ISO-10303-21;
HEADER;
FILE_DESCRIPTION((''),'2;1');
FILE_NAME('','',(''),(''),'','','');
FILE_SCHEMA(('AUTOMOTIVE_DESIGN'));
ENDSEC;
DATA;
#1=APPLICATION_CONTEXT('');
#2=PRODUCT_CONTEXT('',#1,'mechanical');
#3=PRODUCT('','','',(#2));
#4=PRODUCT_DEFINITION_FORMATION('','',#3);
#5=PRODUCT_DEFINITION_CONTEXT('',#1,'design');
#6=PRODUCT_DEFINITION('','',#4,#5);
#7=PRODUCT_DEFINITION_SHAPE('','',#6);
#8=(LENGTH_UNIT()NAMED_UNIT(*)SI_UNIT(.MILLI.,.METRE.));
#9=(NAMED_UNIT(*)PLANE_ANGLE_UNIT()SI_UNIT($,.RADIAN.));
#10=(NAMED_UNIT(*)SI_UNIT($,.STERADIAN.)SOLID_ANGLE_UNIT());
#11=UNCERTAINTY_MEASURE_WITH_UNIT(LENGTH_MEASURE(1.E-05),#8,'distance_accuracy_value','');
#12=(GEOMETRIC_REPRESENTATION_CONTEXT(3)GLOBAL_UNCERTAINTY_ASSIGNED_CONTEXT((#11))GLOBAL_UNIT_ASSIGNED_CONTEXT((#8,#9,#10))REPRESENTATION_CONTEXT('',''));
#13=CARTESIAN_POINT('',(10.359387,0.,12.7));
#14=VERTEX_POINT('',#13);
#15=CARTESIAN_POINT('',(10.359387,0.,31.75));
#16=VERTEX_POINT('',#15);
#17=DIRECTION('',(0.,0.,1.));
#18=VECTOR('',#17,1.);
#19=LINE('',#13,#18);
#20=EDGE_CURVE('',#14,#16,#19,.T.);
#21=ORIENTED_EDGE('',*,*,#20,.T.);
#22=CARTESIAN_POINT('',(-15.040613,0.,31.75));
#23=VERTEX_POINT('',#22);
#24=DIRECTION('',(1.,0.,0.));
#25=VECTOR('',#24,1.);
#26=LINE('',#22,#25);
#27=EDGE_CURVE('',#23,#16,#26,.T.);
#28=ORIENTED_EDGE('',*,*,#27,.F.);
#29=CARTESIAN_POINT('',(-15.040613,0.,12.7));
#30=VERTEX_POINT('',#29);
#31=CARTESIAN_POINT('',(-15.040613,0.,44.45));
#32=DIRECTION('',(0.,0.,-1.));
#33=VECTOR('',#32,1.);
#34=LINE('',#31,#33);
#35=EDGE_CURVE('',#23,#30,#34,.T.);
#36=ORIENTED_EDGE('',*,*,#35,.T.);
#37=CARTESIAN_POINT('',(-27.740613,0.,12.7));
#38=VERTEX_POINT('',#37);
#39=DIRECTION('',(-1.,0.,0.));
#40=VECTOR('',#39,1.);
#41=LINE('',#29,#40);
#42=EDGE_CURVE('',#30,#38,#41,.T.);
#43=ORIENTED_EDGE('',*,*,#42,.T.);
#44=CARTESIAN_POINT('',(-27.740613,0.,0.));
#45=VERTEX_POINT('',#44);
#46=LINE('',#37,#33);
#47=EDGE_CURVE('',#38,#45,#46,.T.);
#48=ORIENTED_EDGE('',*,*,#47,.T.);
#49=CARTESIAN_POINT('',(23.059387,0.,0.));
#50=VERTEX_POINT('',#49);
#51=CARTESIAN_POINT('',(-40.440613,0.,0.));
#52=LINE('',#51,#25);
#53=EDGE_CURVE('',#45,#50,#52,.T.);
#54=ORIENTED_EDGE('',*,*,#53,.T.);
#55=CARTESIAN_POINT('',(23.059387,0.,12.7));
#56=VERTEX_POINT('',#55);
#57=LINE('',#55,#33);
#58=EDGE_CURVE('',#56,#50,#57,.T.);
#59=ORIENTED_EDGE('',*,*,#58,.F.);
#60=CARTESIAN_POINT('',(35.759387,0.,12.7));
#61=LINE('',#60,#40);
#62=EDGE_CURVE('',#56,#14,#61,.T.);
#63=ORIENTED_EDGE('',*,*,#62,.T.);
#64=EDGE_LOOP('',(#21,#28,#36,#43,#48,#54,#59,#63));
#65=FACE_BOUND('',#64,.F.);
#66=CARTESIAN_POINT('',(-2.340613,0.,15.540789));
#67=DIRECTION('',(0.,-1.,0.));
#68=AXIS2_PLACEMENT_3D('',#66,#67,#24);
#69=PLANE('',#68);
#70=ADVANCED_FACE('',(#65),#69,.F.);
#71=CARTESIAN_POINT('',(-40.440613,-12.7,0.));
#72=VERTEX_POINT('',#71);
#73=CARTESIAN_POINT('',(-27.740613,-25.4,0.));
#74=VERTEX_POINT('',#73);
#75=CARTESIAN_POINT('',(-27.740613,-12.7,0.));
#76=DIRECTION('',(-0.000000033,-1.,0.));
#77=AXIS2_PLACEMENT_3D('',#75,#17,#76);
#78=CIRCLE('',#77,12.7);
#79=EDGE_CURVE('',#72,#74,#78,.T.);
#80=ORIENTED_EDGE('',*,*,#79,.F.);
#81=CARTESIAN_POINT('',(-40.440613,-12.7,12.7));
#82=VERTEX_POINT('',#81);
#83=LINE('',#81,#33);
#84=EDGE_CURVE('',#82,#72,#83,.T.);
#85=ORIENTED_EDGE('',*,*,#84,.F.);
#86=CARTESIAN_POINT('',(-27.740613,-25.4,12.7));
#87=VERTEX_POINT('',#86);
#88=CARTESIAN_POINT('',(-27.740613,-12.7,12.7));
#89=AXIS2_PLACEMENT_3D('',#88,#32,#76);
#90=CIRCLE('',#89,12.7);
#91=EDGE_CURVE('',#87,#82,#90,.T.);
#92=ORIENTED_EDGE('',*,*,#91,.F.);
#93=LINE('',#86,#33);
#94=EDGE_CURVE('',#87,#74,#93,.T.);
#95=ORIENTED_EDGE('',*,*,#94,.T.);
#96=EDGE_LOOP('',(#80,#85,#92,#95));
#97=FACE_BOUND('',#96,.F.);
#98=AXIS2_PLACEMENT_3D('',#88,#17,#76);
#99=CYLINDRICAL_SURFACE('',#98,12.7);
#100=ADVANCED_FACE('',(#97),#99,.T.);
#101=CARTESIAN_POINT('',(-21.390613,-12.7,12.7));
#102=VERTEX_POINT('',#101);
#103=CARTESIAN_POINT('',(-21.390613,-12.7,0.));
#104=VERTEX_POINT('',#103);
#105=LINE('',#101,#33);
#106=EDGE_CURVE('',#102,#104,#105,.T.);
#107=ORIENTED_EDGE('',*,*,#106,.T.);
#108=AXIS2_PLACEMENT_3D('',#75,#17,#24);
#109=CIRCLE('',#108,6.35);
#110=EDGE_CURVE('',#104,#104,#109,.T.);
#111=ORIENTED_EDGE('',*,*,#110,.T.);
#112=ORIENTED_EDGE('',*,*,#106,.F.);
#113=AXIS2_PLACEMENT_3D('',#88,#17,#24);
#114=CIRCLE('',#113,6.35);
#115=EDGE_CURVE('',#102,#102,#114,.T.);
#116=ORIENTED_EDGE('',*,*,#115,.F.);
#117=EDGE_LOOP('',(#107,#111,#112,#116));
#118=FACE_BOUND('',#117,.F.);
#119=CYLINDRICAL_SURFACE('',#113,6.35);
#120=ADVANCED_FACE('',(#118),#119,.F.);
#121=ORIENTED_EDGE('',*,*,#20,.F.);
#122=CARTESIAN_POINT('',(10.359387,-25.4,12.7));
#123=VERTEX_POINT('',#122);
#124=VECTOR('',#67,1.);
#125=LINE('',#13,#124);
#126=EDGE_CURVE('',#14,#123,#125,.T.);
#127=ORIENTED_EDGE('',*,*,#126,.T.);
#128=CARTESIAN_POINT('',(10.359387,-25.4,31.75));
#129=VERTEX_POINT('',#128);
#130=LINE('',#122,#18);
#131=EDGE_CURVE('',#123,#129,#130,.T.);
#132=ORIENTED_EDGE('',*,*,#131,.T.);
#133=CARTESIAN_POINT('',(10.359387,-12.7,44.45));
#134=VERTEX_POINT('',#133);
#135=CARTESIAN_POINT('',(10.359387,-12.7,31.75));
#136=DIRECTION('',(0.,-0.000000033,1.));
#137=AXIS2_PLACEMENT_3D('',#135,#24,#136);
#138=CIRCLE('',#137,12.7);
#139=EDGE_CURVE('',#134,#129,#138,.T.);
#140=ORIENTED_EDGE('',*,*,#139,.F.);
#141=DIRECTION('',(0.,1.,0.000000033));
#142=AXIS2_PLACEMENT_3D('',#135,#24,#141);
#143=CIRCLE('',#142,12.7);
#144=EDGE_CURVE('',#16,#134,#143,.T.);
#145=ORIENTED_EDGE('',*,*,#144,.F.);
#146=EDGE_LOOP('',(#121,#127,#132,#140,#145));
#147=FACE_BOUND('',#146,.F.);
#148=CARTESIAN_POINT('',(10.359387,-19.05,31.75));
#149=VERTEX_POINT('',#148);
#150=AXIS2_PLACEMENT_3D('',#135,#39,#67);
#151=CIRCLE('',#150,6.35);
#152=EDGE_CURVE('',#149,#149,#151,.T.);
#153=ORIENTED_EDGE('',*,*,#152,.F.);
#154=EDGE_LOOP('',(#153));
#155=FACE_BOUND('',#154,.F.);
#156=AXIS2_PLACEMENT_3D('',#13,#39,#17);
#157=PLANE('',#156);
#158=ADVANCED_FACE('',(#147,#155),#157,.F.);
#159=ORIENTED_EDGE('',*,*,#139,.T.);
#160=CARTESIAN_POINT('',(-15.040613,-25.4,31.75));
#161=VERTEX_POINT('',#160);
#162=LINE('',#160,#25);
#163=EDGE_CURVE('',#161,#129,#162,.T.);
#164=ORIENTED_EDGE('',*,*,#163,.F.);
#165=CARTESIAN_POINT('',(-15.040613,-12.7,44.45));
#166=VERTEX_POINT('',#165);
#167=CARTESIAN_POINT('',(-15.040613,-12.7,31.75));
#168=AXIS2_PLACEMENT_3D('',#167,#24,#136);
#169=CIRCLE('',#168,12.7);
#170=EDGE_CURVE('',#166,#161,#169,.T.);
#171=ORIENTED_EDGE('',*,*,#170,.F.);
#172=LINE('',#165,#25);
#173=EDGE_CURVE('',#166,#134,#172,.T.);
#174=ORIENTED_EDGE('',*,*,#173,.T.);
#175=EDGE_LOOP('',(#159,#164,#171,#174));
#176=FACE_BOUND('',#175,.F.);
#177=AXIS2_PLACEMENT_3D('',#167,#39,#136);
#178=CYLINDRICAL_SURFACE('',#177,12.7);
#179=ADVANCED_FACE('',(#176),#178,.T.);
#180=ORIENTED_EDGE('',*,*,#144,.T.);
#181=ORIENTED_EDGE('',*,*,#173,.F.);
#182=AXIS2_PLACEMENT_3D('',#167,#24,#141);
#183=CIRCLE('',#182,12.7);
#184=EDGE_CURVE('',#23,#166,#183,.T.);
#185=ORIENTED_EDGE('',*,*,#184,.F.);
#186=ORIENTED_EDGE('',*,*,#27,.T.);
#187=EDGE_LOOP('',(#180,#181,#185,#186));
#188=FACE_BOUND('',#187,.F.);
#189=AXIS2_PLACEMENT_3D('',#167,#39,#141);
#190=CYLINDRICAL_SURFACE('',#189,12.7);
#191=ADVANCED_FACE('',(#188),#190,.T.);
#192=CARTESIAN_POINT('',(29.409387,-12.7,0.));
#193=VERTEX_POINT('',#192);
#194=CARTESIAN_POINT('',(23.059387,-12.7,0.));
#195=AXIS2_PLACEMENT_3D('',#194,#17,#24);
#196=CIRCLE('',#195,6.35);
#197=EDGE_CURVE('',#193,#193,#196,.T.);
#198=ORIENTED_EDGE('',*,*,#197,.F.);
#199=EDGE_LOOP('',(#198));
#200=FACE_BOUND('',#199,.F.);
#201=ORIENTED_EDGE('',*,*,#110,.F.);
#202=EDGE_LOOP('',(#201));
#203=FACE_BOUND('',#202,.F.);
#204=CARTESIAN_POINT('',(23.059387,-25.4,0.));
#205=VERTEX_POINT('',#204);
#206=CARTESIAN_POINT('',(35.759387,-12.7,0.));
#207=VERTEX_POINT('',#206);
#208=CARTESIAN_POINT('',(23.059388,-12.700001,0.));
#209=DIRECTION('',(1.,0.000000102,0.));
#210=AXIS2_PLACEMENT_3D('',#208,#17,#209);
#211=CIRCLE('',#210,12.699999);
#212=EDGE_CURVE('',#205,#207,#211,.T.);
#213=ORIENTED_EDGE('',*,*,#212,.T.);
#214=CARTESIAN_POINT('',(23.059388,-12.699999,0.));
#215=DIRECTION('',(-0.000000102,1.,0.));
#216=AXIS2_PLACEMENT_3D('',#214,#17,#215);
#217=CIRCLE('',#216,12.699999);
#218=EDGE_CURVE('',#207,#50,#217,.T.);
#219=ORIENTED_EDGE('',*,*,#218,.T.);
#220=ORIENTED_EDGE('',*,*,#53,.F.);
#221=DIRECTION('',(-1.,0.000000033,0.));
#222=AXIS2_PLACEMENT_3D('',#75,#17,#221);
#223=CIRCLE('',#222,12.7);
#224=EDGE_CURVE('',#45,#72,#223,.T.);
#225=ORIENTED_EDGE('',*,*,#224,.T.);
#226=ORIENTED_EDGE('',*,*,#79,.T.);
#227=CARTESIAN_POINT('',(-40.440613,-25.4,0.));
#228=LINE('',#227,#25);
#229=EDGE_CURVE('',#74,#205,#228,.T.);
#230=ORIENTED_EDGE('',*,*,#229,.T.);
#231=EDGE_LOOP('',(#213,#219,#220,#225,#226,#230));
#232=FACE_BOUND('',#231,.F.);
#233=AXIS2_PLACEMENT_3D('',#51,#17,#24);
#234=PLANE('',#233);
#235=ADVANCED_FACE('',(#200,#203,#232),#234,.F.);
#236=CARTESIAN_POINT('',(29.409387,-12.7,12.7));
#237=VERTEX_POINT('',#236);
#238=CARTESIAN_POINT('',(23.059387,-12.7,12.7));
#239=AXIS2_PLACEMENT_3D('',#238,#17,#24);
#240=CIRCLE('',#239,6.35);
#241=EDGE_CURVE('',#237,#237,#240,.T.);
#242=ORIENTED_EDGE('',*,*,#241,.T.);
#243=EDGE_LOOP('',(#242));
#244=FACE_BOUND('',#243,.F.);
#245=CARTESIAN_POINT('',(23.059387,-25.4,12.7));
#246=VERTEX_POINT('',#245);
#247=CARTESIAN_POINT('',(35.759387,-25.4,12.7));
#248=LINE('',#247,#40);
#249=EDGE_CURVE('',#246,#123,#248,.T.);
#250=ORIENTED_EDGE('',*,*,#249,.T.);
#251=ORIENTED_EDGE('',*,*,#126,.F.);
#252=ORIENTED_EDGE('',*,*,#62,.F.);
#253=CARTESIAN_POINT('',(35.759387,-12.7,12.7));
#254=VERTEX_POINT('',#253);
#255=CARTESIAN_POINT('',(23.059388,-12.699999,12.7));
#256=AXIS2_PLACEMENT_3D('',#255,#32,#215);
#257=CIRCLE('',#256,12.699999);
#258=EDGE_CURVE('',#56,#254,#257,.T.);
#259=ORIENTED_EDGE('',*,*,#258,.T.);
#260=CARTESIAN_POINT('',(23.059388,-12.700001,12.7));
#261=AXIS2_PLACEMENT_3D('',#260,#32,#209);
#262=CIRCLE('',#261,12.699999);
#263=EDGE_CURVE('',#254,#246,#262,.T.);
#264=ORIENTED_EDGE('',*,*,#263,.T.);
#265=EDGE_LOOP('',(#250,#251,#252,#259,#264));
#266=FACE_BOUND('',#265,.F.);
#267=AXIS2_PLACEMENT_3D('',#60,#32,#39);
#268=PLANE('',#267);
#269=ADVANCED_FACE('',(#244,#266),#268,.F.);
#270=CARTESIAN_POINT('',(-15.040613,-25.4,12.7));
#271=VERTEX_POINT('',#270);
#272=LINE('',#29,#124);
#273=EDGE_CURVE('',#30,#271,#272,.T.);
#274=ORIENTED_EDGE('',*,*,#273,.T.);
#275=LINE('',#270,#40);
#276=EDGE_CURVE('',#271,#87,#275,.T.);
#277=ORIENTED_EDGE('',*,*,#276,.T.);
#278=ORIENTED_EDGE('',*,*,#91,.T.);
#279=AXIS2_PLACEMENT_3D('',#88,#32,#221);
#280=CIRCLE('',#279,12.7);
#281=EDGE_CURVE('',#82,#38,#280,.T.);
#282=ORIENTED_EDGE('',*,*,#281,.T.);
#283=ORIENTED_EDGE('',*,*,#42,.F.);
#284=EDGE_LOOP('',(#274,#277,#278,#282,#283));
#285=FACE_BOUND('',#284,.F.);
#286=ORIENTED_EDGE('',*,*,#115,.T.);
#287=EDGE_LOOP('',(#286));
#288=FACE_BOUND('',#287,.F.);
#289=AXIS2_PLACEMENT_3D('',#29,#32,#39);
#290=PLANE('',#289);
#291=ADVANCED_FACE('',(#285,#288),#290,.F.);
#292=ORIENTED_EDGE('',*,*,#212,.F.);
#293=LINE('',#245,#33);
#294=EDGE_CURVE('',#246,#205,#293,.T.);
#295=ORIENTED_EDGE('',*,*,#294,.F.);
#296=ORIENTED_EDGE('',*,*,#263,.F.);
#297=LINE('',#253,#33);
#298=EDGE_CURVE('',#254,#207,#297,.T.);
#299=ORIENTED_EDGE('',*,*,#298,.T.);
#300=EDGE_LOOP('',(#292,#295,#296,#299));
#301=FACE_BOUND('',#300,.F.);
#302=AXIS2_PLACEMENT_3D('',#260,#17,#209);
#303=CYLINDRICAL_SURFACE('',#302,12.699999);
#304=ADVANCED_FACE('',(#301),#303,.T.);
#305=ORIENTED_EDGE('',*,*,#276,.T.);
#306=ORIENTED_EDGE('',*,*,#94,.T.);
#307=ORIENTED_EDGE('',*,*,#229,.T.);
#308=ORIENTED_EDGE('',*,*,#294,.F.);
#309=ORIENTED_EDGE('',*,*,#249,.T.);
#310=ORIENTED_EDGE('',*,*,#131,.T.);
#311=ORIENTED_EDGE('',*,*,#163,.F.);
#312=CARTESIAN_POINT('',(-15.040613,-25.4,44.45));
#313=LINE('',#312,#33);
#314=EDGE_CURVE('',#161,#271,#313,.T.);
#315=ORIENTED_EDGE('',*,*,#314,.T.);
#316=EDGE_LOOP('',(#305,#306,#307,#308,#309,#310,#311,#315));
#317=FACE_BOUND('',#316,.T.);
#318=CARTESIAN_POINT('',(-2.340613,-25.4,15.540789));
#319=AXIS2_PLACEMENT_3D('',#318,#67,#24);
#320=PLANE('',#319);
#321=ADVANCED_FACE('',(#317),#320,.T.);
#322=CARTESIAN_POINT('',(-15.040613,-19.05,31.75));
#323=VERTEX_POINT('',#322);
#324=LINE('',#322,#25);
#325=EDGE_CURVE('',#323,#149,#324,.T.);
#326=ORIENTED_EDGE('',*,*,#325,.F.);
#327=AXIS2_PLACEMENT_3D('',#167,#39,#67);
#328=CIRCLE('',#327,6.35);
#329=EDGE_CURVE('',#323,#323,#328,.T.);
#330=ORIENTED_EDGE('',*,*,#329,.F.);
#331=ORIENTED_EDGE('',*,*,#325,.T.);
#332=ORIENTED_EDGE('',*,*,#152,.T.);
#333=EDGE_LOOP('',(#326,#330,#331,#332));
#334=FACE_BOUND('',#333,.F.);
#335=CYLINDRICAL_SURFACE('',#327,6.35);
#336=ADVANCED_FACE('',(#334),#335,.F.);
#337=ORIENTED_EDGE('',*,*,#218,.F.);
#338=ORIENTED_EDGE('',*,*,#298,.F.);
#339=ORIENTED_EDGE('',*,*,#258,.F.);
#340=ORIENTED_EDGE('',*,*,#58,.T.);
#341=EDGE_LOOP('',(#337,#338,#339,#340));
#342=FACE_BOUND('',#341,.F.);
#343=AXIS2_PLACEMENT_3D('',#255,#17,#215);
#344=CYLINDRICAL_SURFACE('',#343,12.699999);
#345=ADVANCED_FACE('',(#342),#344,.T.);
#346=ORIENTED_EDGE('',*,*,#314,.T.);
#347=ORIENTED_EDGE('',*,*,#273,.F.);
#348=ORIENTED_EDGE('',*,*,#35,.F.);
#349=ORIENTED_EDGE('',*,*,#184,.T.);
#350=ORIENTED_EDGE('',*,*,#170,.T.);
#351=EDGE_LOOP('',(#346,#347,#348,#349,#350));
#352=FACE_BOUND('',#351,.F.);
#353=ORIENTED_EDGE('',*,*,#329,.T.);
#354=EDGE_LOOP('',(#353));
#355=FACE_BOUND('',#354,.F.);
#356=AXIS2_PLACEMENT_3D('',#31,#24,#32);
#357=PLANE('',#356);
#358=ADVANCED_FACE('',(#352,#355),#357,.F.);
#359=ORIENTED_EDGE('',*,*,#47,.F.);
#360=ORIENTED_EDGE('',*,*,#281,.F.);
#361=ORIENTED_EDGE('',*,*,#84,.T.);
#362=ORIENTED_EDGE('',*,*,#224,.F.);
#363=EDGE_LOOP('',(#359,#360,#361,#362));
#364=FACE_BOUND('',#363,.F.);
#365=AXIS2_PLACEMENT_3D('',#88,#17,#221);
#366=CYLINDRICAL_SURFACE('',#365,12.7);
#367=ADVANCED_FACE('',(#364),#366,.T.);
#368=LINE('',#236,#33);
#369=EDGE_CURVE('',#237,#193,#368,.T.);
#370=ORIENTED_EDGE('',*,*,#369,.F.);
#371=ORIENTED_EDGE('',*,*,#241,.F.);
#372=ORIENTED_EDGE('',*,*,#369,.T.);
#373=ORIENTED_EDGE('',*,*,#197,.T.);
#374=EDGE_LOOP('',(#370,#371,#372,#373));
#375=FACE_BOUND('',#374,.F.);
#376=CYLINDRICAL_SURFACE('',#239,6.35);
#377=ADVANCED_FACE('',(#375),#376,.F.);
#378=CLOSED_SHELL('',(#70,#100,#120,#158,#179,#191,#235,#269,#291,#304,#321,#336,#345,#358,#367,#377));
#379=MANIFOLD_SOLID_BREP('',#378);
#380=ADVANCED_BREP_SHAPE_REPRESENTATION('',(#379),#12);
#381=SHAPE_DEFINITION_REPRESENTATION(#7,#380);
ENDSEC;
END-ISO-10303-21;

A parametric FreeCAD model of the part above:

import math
import FreeCAD as App
import Part
import Sketcher
Q = App.Units.Quantity

doc = App.newDocument("Part")
body = doc.addObject("PartDesign::Body", "Body")

# Sketch on XZ plane
sketch1 = doc.addObject("Sketcher::SketchObject", "Sketch")
body.addObject(sketch1)
sketch1.AttachmentSupport = (doc.XZ_Plane, [""])
sketch1.MapMode = "FlatFace"
sketch1.addGeometry([
    Part.LineSegment(App.Vector(-40, 13, 0), App.Vector(-40, 0, 0)),  # 0
    Part.LineSegment(App.Vector(-40, 0, 0), App.Vector(36, 0, 0)),  # 1
    Part.LineSegment(App.Vector(36, 0, 0), App.Vector(36, 13, 0)),  # 2
    Part.LineSegment(App.Vector(36, 13, 0), App.Vector(10, 13, 0)),  # 3
    Part.LineSegment(App.Vector(10, 13, 0), App.Vector(10, 44, 0)),  # 4
    Part.LineSegment(App.Vector(10, 44, 0), App.Vector(-15, 44, 0)),  # 5
    Part.LineSegment(App.Vector(-15, 44, 0), App.Vector(-15, 13, 0)),  # 6
    Part.LineSegment(App.Vector(-15, 13, 0), App.Vector(-40, 13, 0)),  # 7
], False)
sketch1.addConstraint([
    Sketcher.Constraint("Coincident", 0, 2, 1, 1),
    Sketcher.Constraint("Coincident", 1, 2, 2, 1),
    Sketcher.Constraint("Coincident", 2, 2, 3, 1),
    Sketcher.Constraint("Coincident", 3, 2, 4, 1),
    Sketcher.Constraint("Coincident", 4, 2, 5, 1),
    Sketcher.Constraint("Coincident", 5, 2, 6, 1),
    Sketcher.Constraint("Coincident", 6, 2, 7, 1),
    Sketcher.Constraint("Coincident", 7, 2, 0, 1),
    Sketcher.Constraint("Vertical", 0),
    Sketcher.Constraint("Horizontal", 1),
    Sketcher.Constraint("Vertical", 2),
    Sketcher.Constraint("Horizontal", 3),
    Sketcher.Constraint("Vertical", 4),
    Sketcher.Constraint("Horizontal", 5),
    Sketcher.Constraint("Vertical", 6),
    Sketcher.Constraint("Horizontal", 7),
    Sketcher.Constraint("PointOnObject", 0, 2, -1),
    Sketcher.Constraint("Horizontal", 3, 2, 6, 2),
    Sketcher.Constraint("Equal", 3, 5),
    Sketcher.Constraint("Equal", 5, 7),
    Sketcher.Constraint("DistanceX", 1, 1, 1, 2, Q("3 in")),
    Sketcher.Constraint("DistanceY", 0, 2, 0, 1, Q("0.5 in")),
    Sketcher.Constraint("DistanceY", 4, 1, 4, 2, Q("1.25 in")),
    Sketcher.Constraint("DistanceX", 0, 2, -1, 1, Q("40.440613 mm")),
])
pad1 = doc.addObject("PartDesign::Pad", "Pad")
body.addObject(pad1)
pad1.Profile = sketch1
pad1.Length = Q("1 in")

# Sketch on YZ plane
sketch2 = doc.addObject("Sketcher::SketchObject", "Sketch001")
body.addObject(sketch2)
sketch2.AttachmentSupport = (doc.YZ_Plane, [""])
sketch2.MapMode = "FlatFace"
sketch2.AttachmentOffset = App.Placement(App.Vector(0, 0, -15.040613), App.Rotation())
sketch2.addGeometry([
    Part.ArcOfCircle(Part.Circle(App.Vector(-13, 32, 0), App.Vector(0, 0, 1), 13), math.radians(90), math.radians(180)),  # 0
    Part.LineSegment(App.Vector(-25, 32, 0), App.Vector(-25, 44, 0)),  # 1
    Part.LineSegment(App.Vector(-25, 44, 0), App.Vector(-13, 44, 0)),  # 2
    Part.ArcOfCircle(Part.Circle(App.Vector(-13, 32, 0), App.Vector(0, 0, 1), 13), math.radians(0), math.radians(90)),  # 3
    Part.LineSegment(App.Vector(-13, 44, 0), App.Vector(0, 44, 0)),  # 4
    Part.LineSegment(App.Vector(0, 44, 0), App.Vector(0, 32, 0)),  # 5
    Part.Circle(App.Vector(-13, 32, 0), App.Vector(0, 0, 1), 6),  # 6
], False)
sketch2.addConstraint([
    Sketcher.Constraint("Tangent", 0, 2, 1, 1),
    Sketcher.Constraint("Coincident", 1, 2, 2, 1),
    Sketcher.Constraint("Tangent", 2, 2, 0, 1),
    Sketcher.Constraint("Tangent", 3, 2, 4, 1),
    Sketcher.Constraint("Coincident", 4, 2, 5, 1),
    Sketcher.Constraint("Tangent", 5, 2, 3, 1),
    Sketcher.Constraint("Vertical", 1),
    Sketcher.Constraint("Horizontal", 2),
    Sketcher.Constraint("Horizontal", 4),
    Sketcher.Constraint("Vertical", 5),
    Sketcher.Constraint("Coincident", 3, 3, 0, 3),
    Sketcher.Constraint("Coincident", 6, 3, 0, 3),
    Sketcher.Constraint("Equal", 0, 3),
    Sketcher.Constraint("PointOnObject", 4, 2, -2),
    Sketcher.Constraint("Diameter", 6, Q("0.5 in")),
    Sketcher.Constraint("Radius", 0, Q("0.5 in")),
    Sketcher.Constraint("DistanceY", -1, 1, 0, 3, Q("1.25 in")),
])
pocket1 = doc.addObject("PartDesign::Pocket", "Pocket")
body.addObject(pocket1)
pocket1.Profile = sketch2
pocket1.Length = Q("1 in")
pocket1.Reversed = True

# Sketch on XY plane
sketch3 = doc.addObject("Sketcher::SketchObject", "Sketch002")
body.addObject(sketch3)
sketch3.AttachmentSupport = (doc.XY_Plane, [""])
sketch3.MapMode = "FlatFace"
sketch3.AttachmentOffset = App.Placement(App.Vector(0, 0, 0.5 * 25.4), App.Rotation())
sketch3.addGeometry([
    Part.Circle(App.Vector(-28, -13, 0), App.Vector(0, 0, 1), 6),  # 0
    Part.ArcOfCircle(Part.Circle(App.Vector(-28, -13, 0), App.Vector(0, 0, 1), 13), math.radians(90), math.radians(180)),  # 1
    Part.LineSegment(App.Vector(-28, 0, 0), App.Vector(-40, 0, 0)),  # 2
    Part.LineSegment(App.Vector(-40, 0, 0), App.Vector(-40, -13, 0)),  # 3
    Part.ArcOfCircle(Part.Circle(App.Vector(-28, -13, 0), App.Vector(0, 0, 1), 13), math.radians(-180), math.radians(-90)),  # 4
    Part.LineSegment(App.Vector(-40, -13, 0), App.Vector(-40, -25, 0)),  # 5
    Part.LineSegment(App.Vector(-40, -25, 0), App.Vector(-28, -25, 0)),  # 6
], False)
sketch3.addConstraint([
    Sketcher.Constraint("Tangent", 1, 1, 2, 1),
    Sketcher.Constraint("Coincident", 2, 2, 3, 1),
    Sketcher.Constraint("Tangent", 3, 2, 1, 2),
    Sketcher.Constraint("Tangent", 4, 1, 5, 1),
    Sketcher.Constraint("Coincident", 5, 2, 6, 1),
    Sketcher.Constraint("Tangent", 6, 2, 4, 2),
    Sketcher.Constraint("Horizontal", 2),
    Sketcher.Constraint("Vertical", 3),
    Sketcher.Constraint("Vertical", 5),
    Sketcher.Constraint("Horizontal", 6),
    Sketcher.Constraint("Coincident", 1, 3, 0, 3),
    Sketcher.Constraint("Coincident", 4, 3, 0, 3),
    Sketcher.Constraint("Equal", 1, 4),
    Sketcher.Constraint("PointOnObject", 1, 1, -1),
    Sketcher.Constraint("Diameter", 0, Q("0.5 in")),
    Sketcher.Constraint("Radius", 1, Q("0.5 in")),
    Sketcher.Constraint("DistanceX", 0, 3, -1, 1, Q("27.740613 mm")),
])
pocket2 = doc.addObject("PartDesign::Pocket", "Pocket001")
body.addObject(pocket2)
pocket2.Profile = sketch3
pocket2.Type = "ThroughAll"

# Sketch on XY plane
sketch4 = doc.addObject("Sketcher::SketchObject", "Sketch003")
body.addObject(sketch4)
sketch4.AttachmentSupport = (doc.XY_Plane, [""])
sketch4.MapMode = "FlatFace"
sketch4.AttachmentOffset = App.Placement(App.Vector(0, 0, 0.5 * 25.4), App.Rotation())
sketch4.addGeometry([
    Part.ArcOfCircle(Part.Circle(App.Vector(23, -13, 0), App.Vector(0, 0, 1), 13), math.radians(0), math.radians(90)),  # 0
    Part.LineSegment(App.Vector(36, -13, 0), App.Vector(36, 0, 0)),  # 1
    Part.LineSegment(App.Vector(36, 0, 0), App.Vector(23, 0, 0)),  # 2
    Part.ArcOfCircle(Part.Circle(App.Vector(23, -13, 0), App.Vector(0, 0, 1), 13), math.radians(-90), math.radians(0)),  # 3
    Part.LineSegment(App.Vector(23, -25, 0), App.Vector(36, -25, 0)),  # 4
    Part.LineSegment(App.Vector(36, -25, 0), App.Vector(36, -13, 0)),  # 5
    Part.Circle(App.Vector(23, -13, 0), App.Vector(0, 0, 1), 6),  # 6
], False)
sketch4.addConstraint([
    Sketcher.Constraint("Tangent", 0, 1, 1, 1),
    Sketcher.Constraint("Coincident", 1, 2, 2, 1),
    Sketcher.Constraint("Tangent", 2, 2, 0, 2),
    Sketcher.Constraint("Tangent", 3, 1, 4, 1),
    Sketcher.Constraint("Coincident", 4, 2, 5, 1),
    Sketcher.Constraint("Tangent", 5, 2, 3, 2),
    Sketcher.Constraint("Vertical", 1),
    Sketcher.Constraint("Horizontal", 2),
    Sketcher.Constraint("Horizontal", 4),
    Sketcher.Constraint("Vertical", 5),
    Sketcher.Constraint("Coincident", 3, 3, 0, 3),
    Sketcher.Constraint("Coincident", 6, 3, 0, 3),
    Sketcher.Constraint("Equal", 0, 3),
    Sketcher.Constraint("PointOnObject", 1, 2, -1),
    Sketcher.Constraint("Diameter", 6, Q("0.5 in")),
    Sketcher.Constraint("Radius", 0, Q("0.4999999 in")),
    Sketcher.Constraint("DistanceX", -1, 1, 0, 3, Q("23.059388 mm")),
])
pocket3 = doc.addObject("PartDesign::Pocket", "Pocket002")
body.addObject(pocket3)
pocket3.Profile = sketch4
pocket3.Type = "ThroughAll"

doc.recompute()
